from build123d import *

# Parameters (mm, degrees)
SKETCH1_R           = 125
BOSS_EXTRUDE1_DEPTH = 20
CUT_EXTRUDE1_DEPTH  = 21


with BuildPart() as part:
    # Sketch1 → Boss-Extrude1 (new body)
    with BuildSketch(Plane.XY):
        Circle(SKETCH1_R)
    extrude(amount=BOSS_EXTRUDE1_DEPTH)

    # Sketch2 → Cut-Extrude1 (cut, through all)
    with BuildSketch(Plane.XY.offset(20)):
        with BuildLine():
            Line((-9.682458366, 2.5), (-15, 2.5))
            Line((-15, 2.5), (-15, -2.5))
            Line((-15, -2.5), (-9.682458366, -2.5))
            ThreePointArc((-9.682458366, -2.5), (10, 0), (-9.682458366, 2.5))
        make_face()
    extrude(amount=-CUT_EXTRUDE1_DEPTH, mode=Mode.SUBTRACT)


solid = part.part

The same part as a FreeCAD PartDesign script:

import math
import FreeCAD as App
import Part
import Sketcher
from FreeCAD import Vector

doc = App.newDocument("Part")
body = doc.addObject("PartDesign::Body", "Body")

sketch1 = body.newObject("Sketcher::SketchObject", "Sketch")
sketch1.AttachmentSupport = (doc.getObject("XY_Plane"), [""])
sketch1.MapMode = "FlatFace"
sketch1.addGeometry(Part.Circle(Vector(0, 0, 0), Vector(0, 0, 1), 125), False)
sketch1.addConstraint([
    Sketcher.Constraint("Coincident", 0, 3, -1, 1),
    Sketcher.Constraint("Diameter", 0, 250.0),
])
pad1 = body.newObject("PartDesign::Pad", "Pad")
pad1.Profile = sketch1
pad1.Length = 20

sketch2 = body.newObject("Sketcher::SketchObject", "Sketch001")
sketch2.AttachmentSupport = (doc.getObject("XY_Plane"), [""])
sketch2.MapMode = "FlatFace"
sketch2.AttachmentOffset = App.Placement(Vector(0, 0, 20), App.Rotation())
sketch2.addGeometry([
    Part.LineSegment(Vector(-9.682458, 2.5, 0), Vector(-15, 2.5, 0)),
    Part.LineSegment(Vector(-15, 2.5, 0), Vector(-15, -2.5, 0)),
    Part.LineSegment(Vector(-15, -2.5, 0), Vector(-9.682458, -2.5, 0)),
    Part.ArcOfCircle(Part.Circle(Vector(0, 0, 0), Vector(0, 0, 1), 10), math.radians(-165.522488), math.radians(165.522488)),
], False)
sketch2.addConstraint([
    Sketcher.Constraint("Coincident", 0, 2, 1, 1),
    Sketcher.Constraint("Coincident", 1, 2, 2, 1),
    Sketcher.Constraint("Coincident", 2, 2, 3, 1),
    Sketcher.Constraint("Coincident", 3, 2, 0, 1),
    Sketcher.Constraint("Horizontal", 0),
    Sketcher.Constraint("Vertical", 1),
    Sketcher.Constraint("Horizontal", 2),
    Sketcher.Constraint("Coincident", 3, 3, -1, 1),
    Sketcher.Constraint("Vertical", 2, 2, 3, 2),
    Sketcher.Constraint("Radius", 3, 10.0),
    Sketcher.Constraint("DistanceY", 1, 2, 1, 1, 5.0),
    Sketcher.Constraint("DistanceX", 0, 2, -1, 1, 15.0),
])
pocket1 = body.newObject("PartDesign::Pocket", "Pocket")
pocket1.Profile = sketch2
pocket1.Type = "ThroughAll"

doc.recompute()
